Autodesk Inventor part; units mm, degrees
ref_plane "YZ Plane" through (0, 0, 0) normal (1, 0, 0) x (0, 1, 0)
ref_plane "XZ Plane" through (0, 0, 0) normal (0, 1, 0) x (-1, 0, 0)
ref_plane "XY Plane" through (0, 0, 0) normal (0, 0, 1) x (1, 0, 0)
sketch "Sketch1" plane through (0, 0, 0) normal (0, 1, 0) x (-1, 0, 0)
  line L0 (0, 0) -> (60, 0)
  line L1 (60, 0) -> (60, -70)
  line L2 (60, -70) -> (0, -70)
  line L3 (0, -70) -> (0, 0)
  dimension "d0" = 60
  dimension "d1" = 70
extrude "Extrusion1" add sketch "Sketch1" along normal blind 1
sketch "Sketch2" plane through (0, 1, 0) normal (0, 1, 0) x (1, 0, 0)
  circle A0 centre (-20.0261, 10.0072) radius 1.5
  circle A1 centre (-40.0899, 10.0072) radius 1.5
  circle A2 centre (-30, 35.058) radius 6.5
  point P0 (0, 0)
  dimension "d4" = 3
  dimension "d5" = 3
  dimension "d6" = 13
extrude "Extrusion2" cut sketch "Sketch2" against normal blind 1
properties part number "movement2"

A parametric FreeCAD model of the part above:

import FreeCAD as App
import Part
import Sketcher


def add_polygon(sketch, points):
    """Adds a closed chain of lines whose ends are joined by coincident constraints."""
    first, n = sketch.GeometryCount, len(points)
    for a, b in zip(points, points[1:] + points[:1]):
        sketch.addGeometry(Part.LineSegment(App.Vector(*a, 0), App.Vector(*b, 0)), False)
    for i in range(n):
        sketch.addConstraint(Sketcher.Constraint("Coincident", first + i, 2, first + (i + 1) % n, 1))

doc = App.newDocument("Part")
body = doc.addObject("PartDesign::Body", "Body")

# Sketch on XZ plane
sketch1 = body.newObject("Sketcher::SketchObject", "Sketch")
sketch1.AttachmentSupport = (doc.getObject("XZ_Plane"), [""])
sketch1.MapMode = "FlatFace"
add_polygon(sketch1, [(-60, 0), (0, 0), (0, -70), (-60, -70)])  # lines 0-3
sketch1.addConstraint([
    Sketcher.Constraint("Horizontal", 0),
    Sketcher.Constraint("Vertical", 1),
    Sketcher.Constraint("Horizontal", 2),
    Sketcher.Constraint("Vertical", 3),
    Sketcher.Constraint("Coincident", 0, 2, -1, 1),
    Sketcher.Constraint("DistanceX", 0, 1, 0, 2, 60.0),
    Sketcher.Constraint("DistanceY", 1, 2, 1, 1, 70.0),
])
pad1 = body.newObject("PartDesign::Pad", "Pad")
pad1.Profile = sketch1
pad1.Length = 1
pad1.Reversed = True

# Sketch on XZ plane
sketch2 = body.newObject("Sketcher::SketchObject", "Sketch001")
sketch2.AttachmentSupport = (doc.getObject("XZ_Plane"), [""])
sketch2.MapMode = "FlatFace"
sketch2.AttachmentOffset = App.Placement(App.Vector(0, 0, -1), App.Rotation())
sketch2.addGeometry([
    Part.Circle(App.Vector(-20.0261, -10.0072, 0), App.Vector(0, 0, 1), 1.5),
    Part.Circle(App.Vector(-40.0899, -10.0072, 0), App.Vector(0, 0, 1), 1.5),
    Part.Circle(App.Vector(-30, -35.058, 0), App.Vector(0, 0, 1), 6.5),
], False)
sketch2.addConstraint([
    Sketcher.Constraint("Equal", 0, 1),
    Sketcher.Constraint("Horizontal", 0, 3, 1, 3),
    Sketcher.Constraint("Diameter", 0, 3.0),
    Sketcher.Constraint("Diameter", 2, 13.0),
    Sketcher.Constraint("DistanceX", 2, 3, -1, 1, 30.0),
    Sketcher.Constraint("DistanceX", 1, 3, -1, 1, 40.09),
    Sketcher.Constraint("DistanceX", 0, 3, -1, 1, 20.026),
    Sketcher.Constraint("DistanceY", 2, 3, -1, 1, 35.058),
    Sketcher.Constraint("DistanceY", 0, 3, -1, 1, 10.0072),
])
pocket1 = body.newObject("PartDesign::Pocket", "Pocket")
pocket1.Profile = sketch2
pocket1.Length = 1
pocket1.Reversed = True

doc.recompute()
